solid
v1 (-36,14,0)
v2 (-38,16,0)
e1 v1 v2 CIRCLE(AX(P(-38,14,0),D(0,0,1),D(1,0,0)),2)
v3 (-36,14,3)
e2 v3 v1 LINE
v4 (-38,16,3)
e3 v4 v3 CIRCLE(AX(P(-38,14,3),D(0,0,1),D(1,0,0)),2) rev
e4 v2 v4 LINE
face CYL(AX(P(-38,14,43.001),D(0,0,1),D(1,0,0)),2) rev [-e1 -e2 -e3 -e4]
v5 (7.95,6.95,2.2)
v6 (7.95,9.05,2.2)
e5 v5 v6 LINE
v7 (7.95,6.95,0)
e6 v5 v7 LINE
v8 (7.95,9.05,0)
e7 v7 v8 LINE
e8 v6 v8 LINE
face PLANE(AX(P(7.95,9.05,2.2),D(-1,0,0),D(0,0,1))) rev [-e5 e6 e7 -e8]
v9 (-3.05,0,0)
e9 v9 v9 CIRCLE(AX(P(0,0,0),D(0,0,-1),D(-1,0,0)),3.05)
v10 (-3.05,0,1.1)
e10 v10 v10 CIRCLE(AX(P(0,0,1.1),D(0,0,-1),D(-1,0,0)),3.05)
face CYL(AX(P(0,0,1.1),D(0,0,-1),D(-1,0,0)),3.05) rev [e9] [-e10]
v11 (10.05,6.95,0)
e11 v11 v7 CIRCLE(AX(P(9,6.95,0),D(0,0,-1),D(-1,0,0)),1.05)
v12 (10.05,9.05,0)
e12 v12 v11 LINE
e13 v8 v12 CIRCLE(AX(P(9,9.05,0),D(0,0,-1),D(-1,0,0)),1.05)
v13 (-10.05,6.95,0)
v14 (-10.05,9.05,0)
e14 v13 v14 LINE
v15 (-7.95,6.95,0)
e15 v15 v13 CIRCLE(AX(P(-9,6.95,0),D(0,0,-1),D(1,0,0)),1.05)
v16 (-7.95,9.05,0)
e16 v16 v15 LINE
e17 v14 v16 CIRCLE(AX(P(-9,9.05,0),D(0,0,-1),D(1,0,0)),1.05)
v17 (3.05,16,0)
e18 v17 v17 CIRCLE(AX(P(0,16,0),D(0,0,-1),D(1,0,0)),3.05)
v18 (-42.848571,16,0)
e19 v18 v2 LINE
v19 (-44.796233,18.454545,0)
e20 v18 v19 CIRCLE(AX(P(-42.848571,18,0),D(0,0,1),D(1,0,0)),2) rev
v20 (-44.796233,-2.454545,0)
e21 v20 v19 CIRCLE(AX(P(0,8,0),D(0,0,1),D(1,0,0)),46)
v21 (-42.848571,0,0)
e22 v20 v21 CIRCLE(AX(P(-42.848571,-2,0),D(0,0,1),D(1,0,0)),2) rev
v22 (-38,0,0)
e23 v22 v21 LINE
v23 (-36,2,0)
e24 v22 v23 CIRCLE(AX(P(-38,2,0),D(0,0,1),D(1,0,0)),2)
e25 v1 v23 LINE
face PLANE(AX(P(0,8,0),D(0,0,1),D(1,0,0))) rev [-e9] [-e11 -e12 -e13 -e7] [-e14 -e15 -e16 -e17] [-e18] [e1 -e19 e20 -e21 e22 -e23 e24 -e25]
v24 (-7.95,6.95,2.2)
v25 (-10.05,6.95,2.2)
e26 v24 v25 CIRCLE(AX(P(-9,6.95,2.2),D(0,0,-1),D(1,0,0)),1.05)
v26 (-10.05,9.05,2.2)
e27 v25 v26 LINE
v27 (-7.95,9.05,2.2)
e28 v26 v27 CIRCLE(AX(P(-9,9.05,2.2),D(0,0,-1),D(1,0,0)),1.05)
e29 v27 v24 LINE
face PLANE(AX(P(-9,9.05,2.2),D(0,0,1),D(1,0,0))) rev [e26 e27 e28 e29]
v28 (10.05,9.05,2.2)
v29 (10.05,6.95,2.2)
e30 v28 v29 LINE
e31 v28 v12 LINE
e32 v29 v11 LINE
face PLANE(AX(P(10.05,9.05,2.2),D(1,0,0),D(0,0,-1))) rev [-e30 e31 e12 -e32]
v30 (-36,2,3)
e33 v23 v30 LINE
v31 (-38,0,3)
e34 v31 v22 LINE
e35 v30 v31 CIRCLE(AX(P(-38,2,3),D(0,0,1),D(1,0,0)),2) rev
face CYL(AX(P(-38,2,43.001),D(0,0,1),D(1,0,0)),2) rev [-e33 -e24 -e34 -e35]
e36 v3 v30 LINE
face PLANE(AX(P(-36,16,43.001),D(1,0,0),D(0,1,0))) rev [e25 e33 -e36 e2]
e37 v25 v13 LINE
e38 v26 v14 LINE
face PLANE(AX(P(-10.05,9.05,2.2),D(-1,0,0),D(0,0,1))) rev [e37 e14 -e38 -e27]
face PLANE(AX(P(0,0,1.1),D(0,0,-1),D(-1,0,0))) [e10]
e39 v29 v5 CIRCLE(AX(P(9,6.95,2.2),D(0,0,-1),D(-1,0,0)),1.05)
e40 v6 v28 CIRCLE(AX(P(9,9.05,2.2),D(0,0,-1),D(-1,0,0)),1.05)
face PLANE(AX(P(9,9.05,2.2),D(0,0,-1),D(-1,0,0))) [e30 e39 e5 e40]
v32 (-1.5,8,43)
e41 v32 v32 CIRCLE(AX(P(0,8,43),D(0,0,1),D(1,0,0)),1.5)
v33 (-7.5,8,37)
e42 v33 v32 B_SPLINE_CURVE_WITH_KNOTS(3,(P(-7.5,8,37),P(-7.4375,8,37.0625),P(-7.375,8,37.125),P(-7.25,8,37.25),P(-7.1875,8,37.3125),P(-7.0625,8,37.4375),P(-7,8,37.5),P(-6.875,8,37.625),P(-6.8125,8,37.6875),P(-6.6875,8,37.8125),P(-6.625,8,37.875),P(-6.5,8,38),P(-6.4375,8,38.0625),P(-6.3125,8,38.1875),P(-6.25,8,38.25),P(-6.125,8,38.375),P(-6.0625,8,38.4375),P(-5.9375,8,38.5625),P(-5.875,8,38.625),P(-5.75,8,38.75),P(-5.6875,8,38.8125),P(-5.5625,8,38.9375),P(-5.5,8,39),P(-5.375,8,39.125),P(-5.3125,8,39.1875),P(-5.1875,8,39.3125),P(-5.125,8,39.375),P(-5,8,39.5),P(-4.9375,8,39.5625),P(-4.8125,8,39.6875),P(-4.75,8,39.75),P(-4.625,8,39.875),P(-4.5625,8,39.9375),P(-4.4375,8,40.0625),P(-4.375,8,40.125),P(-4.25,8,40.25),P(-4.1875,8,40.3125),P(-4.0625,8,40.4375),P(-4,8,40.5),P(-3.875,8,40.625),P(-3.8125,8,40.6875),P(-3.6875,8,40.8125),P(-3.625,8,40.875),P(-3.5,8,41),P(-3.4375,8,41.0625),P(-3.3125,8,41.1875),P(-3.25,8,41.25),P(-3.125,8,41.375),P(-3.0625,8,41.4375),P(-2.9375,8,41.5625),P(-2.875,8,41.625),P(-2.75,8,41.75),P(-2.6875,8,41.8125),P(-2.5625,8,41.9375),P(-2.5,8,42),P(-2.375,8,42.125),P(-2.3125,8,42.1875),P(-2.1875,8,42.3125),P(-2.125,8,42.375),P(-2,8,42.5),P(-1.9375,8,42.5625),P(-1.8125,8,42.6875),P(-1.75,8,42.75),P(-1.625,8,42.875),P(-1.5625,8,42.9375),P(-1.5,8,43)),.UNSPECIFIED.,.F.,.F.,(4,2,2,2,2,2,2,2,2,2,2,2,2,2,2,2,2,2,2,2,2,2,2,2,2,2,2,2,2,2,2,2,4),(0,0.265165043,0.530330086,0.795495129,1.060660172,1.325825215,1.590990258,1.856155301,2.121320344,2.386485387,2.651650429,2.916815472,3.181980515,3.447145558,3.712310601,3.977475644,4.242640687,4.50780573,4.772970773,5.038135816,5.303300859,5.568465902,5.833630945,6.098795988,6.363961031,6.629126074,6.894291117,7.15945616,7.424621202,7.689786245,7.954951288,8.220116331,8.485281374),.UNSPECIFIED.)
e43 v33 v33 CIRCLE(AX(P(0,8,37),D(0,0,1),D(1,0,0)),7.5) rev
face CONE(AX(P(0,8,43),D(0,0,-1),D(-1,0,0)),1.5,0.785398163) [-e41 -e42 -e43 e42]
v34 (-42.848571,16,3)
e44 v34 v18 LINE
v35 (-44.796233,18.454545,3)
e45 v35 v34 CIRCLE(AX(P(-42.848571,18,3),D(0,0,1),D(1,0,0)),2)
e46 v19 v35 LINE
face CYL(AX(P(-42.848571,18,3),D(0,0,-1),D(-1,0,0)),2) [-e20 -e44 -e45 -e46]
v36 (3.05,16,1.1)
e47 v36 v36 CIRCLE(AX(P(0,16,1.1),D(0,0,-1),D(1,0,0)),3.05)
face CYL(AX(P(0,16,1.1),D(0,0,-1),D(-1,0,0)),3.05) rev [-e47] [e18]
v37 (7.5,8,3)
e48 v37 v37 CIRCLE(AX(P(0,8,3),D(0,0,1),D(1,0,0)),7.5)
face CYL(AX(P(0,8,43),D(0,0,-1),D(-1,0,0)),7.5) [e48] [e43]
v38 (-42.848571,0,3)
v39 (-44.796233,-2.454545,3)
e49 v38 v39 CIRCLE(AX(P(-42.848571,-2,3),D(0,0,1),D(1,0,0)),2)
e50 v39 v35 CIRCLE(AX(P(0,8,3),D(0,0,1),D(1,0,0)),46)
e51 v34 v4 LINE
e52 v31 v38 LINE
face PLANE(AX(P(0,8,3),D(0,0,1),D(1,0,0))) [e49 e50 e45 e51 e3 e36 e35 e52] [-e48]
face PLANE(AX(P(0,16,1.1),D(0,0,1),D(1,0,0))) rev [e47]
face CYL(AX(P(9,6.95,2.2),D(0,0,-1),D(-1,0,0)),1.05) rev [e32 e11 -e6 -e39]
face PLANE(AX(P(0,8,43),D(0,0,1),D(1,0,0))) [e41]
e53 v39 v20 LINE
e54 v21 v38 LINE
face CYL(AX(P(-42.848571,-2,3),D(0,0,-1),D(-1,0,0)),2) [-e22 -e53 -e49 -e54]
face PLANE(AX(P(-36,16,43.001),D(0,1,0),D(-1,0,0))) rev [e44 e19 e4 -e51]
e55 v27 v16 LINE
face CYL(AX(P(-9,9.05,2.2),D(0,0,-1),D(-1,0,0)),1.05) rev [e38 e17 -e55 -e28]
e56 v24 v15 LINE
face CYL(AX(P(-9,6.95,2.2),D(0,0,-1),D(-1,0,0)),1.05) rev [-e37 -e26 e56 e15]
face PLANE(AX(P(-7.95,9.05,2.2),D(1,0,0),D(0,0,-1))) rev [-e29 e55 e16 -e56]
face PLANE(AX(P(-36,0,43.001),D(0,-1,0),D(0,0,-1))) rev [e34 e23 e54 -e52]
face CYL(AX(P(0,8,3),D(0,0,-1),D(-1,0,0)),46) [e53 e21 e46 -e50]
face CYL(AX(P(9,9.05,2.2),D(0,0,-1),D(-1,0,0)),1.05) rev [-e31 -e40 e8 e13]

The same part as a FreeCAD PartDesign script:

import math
import FreeCAD as App
import Part
import Sketcher
from FreeCAD import Vector
Q = App.Units.Quantity


def edges_at(feature, points):
    """Names of the edges that pass closest to the given points."""
    edges = feature.Shape.Edges
    near = lambda p: min(range(len(edges)), key=lambda i: edges[i].distToShape(Part.Vertex(*p))[0])
    return sorted({f"Edge{near(p) + 1}" for p in points})

doc = App.newDocument("Part")
body = doc.addObject("PartDesign::Body", "Body")

# Sketch on XY plane
sketch1 = body.newObject("Sketcher::SketchObject", "Sketch")
sketch1.AttachmentSupport = (doc.getObject("XY_Plane"), [""])
sketch1.MapMode = "FlatFace"
sketch1.addGeometry(Part.Circle(Vector(0, 8, 0), Vector(0, 0, 1), 46), False)
sketch1.addConstraint(Sketcher.Constraint("PointOnObject", 0, 3, -2))
sketch1.addConstraint(Sketcher.Constraint("Diameter", 0, Q("92 mm")))
sketch1.addConstraint(Sketcher.Constraint("DistanceY", -1, 1, 0, 3, Q("8 mm")))
pad1 = body.newObject("PartDesign::Pad", "Pad")
pad1.Profile = sketch1
pad1.Length = 3

# Sketch on XY plane
sketch2 = body.newObject("Sketcher::SketchObject", "Sketch001")
sketch2.AttachmentSupport = (doc.getObject("XY_Plane"), [""])
sketch2.MapMode = "FlatFace"
sketch2.addGeometry(Part.Circle(Vector(0, 0, 0), Vector(0, 0, 1), 3), False)
sketch2.addGeometry(Part.Circle(Vector(0, 16, 0), Vector(0, 0, 1), 3), False)
sketch2.addConstraint(Sketcher.Constraint("Coincident", 0, 3, -1, 1))
sketch2.addConstraint(Sketcher.Constraint("Equal", 0, 1))
sketch2.addConstraint(Sketcher.Constraint("PointOnObject", 1, 3, -2))
sketch2.addConstraint(Sketcher.Constraint("Diameter", 0, Q("6.1 mm")))
sketch2.addConstraint(Sketcher.Constraint("DistanceY", -1, 1, 1, 3, Q("16 mm")))
pocket1 = body.newObject("PartDesign::Pocket", "Pocket")
pocket1.Profile = sketch2
pocket1.Length = 1.1
pocket1.Reversed = True

# Sketch on XY plane
sketch3 = body.newObject("Sketcher::SketchObject", "Sketch002")
sketch3.AttachmentSupport = (doc.getObject("XY_Plane"), [""])
sketch3.MapMode = "FlatFace"
sketch3.addGeometry(Part.LineSegment(Vector(8, 7, 0), Vector(8, 9.1, 0)), False)
sketch3.addGeometry(Part.ArcOfCircle(Part.Circle(Vector(9, 9.1, 0), Vector(0, 0, 1), 1.1), math.radians(0), math.radians(180)), False)
sketch3.addGeometry(Part.LineSegment(Vector(10.1, 9.1, 0), Vector(10.1, 7, 0)), False)
sketch3.addGeometry(Part.ArcOfCircle(Part.Circle(Vector(9, 7, 0), Vector(0, 0, 1), 1.1), math.radians(180), math.radians(360)), False)
sketch3.addGeometry(Part.LineSegment(Vector(-8, 9.1, 0), Vector(-8, 7, 0)), False)
sketch3.addGeometry(Part.ArcOfCircle(Part.Circle(Vector(-9, 7, 0), Vector(0, 0, 1), 1.1), math.radians(180), math.radians(360)), False)
sketch3.addGeometry(Part.LineSegment(Vector(-10.1, 7, 0), Vector(-10.1, 9.1, 0)), False)
sketch3.addGeometry(Part.ArcOfCircle(Part.Circle(Vector(-9, 9.1, 0), Vector(0, 0, 1), 1.1), math.radians(0), math.radians(180)), False)
sketch3.addConstraint(Sketcher.Constraint("Tangent", 0, 2, 1, 2))
sketch3.addConstraint(Sketcher.Constraint("Tangent", 1, 1, 2, 1))
sketch3.addConstraint(Sketcher.Constraint("Tangent", 2, 2, 3, 2))
sketch3.addConstraint(Sketcher.Constraint("Tangent", 3, 1, 0, 1))
sketch3.addConstraint(Sketcher.Constraint("Tangent", 4, 2, 5, 2))
sketch3.addConstraint(Sketcher.Constraint("Tangent", 5, 1, 6, 1))
sketch3.addConstraint(Sketcher.Constraint("Tangent", 6, 2, 7, 2))
sketch3.addConstraint(Sketcher.Constraint("Tangent", 7, 1, 4, 1))
sketch3.addConstraint(Sketcher.Constraint("Vertical", 0))
sketch3.addConstraint(Sketcher.Constraint("Vertical", 2))
sketch3.addConstraint(Sketcher.Constraint("Vertical", 4))
sketch3.addConstraint(Sketcher.Constraint("Vertical", 6))
sketch3.addConstraint(Sketcher.Constraint("Equal", 3, 5))
sketch3.addConstraint(Sketcher.Constraint("Symmetric", 3, 3, 5, 3, -2))
sketch3.addConstraint(Sketcher.Constraint("Horizontal", 1, 3, 7, 3))
sketch3.addConstraint(Sketcher.Constraint("Radius", 1, Q("1.05 mm")))
sketch3.addConstraint(Sketcher.Constraint("DistanceY", 0, 1, 0, 2, Q("2.1 mm")))
sketch3.addConstraint(Sketcher.Constraint("DistanceX", -1, 1, 1, 3, Q("9 mm")))
sketch3.addConstraint(Sketcher.Constraint("DistanceY", -1, 1, 1, 3, Q("9.05 mm")))
pocket2 = body.newObject("PartDesign::Pocket", "Pocket001")
pocket2.Profile = sketch3
pocket2.Length = 2.2
pocket2.Reversed = True

# Sketch on XY plane
sketch4 = body.newObject("Sketcher::SketchObject", "Sketch003")
sketch4.AttachmentSupport = (doc.getObject("XY_Plane"), [""])
sketch4.MapMode = "FlatFace"
sketch4.AttachmentOffset = App.Placement(Vector(0, 0, 3), App.Rotation())
sketch4.addGeometry(Part.Circle(Vector(0, 8, 0), Vector(0, 0, 1), 8), False)
sketch4.addConstraint(Sketcher.Constraint("PointOnObject", 0, 3, -2))
sketch4.addConstraint(Sketcher.Constraint("Diameter", 0, Q("15 mm")))
sketch4.addConstraint(Sketcher.Constraint("DistanceY", -1, 1, 0, 3, Q("8 mm")))
pad2 = body.newObject("PartDesign::Pad", "Pad001")
pad2.Profile = sketch4
pad2.Length = 40
doc.recompute()

chamfer = body.newObject("PartDesign::Chamfer", "Chamfer")
chamfer.Base = (pad2, edges_at(pad2, [(-7.5, 8, 43)]))
chamfer.Size = 6

# Sketch on XY plane
sketch5 = body.newObject("Sketcher::SketchObject", "Sketch004")
sketch5.AttachmentSupport = (doc.getObject("XY_Plane"), [""])
sketch5.MapMode = "FlatFace"
sketch5.addGeometry(Part.LineSegment(Vector(-36, 16, 0), Vector(-36, 0, 0)), False)
sketch5.addGeometry(Part.LineSegment(Vector(-36, 0, 0), Vector(-46, 0, 0)), False)
sketch5.addGeometry(Part.LineSegment(Vector(-46, 0, 0), Vector(-46, 16, 0)), False)
sketch5.addGeometry(Part.LineSegment(Vector(-46, 16, 0), Vector(-36, 16, 0)), False)
sketch5.addConstraint(Sketcher.Constraint("Coincident", 0, 2, 1, 1))
sketch5.addConstraint(Sketcher.Constraint("Coincident", 1, 2, 2, 1))
sketch5.addConstraint(Sketcher.Constraint("Coincident", 2, 2, 3, 1))
sketch5.addConstraint(Sketcher.Constraint("Coincident", 3, 2, 0, 1))
sketch5.addConstraint(Sketcher.Constraint("Vertical", 0))
sketch5.addConstraint(Sketcher.Constraint("Horizontal", 1))
sketch5.addConstraint(Sketcher.Constraint("Vertical", 2))
sketch5.addConstraint(Sketcher.Constraint("Horizontal", 3))
sketch5.addConstraint(Sketcher.Constraint("PointOnObject", 0, 2, -1))
sketch5.addConstraint(Sketcher.Constraint("DistanceX", 1, 2, 1, 1, Q("10 mm")))
sketch5.addConstraint(Sketcher.Constraint("DistanceY", 0, 2, 0, 1, Q("16 mm")))
sketch5.addConstraint(Sketcher.Constraint("DistanceX", 0, 2, -1, 1, Q("36 mm")))
pocket3 = body.newObject("PartDesign::Pocket", "Pocket002")
pocket3.Profile = sketch5
pocket3.Type = "UpToFirst"
pocket3.Reversed = True
doc.recompute()

fillet = body.newObject("PartDesign::Fillet", "Fillet")
fillet.Base = (pocket3, edges_at(pocket3, [
    (-45.299, 0, 1.5),
    (-45.299, 16, 1.5),
    (-36, 16, 1.5),
    (-36, 0, 1.5),
]))
fillet.Radius = 2

doc.recompute()
